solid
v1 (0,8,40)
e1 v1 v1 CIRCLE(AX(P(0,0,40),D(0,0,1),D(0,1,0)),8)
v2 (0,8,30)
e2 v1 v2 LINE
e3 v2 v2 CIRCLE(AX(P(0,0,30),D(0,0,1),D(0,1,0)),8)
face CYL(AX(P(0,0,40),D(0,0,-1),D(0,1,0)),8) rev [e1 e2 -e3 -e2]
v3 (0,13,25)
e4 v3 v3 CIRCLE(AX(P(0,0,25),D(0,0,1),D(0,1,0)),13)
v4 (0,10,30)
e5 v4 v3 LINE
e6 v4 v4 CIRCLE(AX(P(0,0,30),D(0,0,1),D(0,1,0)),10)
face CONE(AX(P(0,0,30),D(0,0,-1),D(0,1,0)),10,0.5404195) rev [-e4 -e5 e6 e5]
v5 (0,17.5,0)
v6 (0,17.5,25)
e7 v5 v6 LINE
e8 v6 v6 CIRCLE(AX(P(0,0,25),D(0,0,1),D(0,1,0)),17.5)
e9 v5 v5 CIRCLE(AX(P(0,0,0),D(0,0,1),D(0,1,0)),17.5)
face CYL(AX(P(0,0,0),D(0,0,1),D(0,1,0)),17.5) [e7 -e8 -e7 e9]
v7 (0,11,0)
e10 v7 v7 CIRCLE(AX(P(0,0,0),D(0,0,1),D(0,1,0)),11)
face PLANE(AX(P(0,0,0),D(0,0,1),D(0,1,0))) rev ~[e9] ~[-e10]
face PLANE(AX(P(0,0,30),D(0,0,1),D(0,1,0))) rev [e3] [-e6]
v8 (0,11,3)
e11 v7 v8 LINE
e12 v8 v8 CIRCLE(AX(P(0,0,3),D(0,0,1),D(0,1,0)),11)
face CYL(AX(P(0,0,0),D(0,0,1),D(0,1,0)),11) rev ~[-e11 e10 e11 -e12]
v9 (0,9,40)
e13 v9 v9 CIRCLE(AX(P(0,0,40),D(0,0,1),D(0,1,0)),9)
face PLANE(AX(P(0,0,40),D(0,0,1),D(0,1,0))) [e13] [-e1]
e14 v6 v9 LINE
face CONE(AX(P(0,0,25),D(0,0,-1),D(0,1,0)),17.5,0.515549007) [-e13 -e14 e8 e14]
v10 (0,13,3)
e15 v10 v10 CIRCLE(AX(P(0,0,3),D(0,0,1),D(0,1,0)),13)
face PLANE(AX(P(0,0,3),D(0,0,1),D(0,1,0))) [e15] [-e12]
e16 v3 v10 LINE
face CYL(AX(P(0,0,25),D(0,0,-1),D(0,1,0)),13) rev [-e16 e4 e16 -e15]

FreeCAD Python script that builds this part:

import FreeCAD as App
import Part
import Sketcher
Q = App.Units.Quantity

doc = App.newDocument("Part")
body = doc.addObject("PartDesign::Body", "Body")

# Sketch on YZ plane
sketch1 = body.newObject("Sketcher::SketchObject", "Sketch")
sketch1.AttachmentSupport = (doc.getObject("YZ_Plane"), [""])
sketch1.MapMode = "FlatFace"
sketch1.addGeometry(Part.LineSegment(App.Vector(11, 0, 0), App.Vector(17.5, 0, 0)), False)
sketch1.addGeometry(Part.LineSegment(App.Vector(17.5, 0, 0), App.Vector(17.5, 25, 0)), False)
sketch1.addGeometry(Part.LineSegment(App.Vector(17.5, 25, 0), App.Vector(9, 40, 0)), False)
sketch1.addGeometry(Part.LineSegment(App.Vector(9, 40, 0), App.Vector(8, 40, 0)), False)
sketch1.addGeometry(Part.LineSegment(App.Vector(8, 40, 0), App.Vector(8, 30, 0)), False)
sketch1.addGeometry(Part.LineSegment(App.Vector(8, 30, 0), App.Vector(10, 30, 0)), False)
sketch1.addGeometry(Part.LineSegment(App.Vector(10, 30, 0), App.Vector(13, 25, 0)), False)
sketch1.addGeometry(Part.LineSegment(App.Vector(13, 25, 0), App.Vector(13, 3, 0)), False)
sketch1.addGeometry(Part.LineSegment(App.Vector(13, 3, 0), App.Vector(11, 3, 0)), False)
sketch1.addGeometry(Part.LineSegment(App.Vector(11, 3, 0), App.Vector(11, 0, 0)), False)
sketch1.addConstraint(Sketcher.Constraint("Coincident", 0, 2, 1, 1))
sketch1.addConstraint(Sketcher.Constraint("Coincident", 1, 2, 2, 1))
sketch1.addConstraint(Sketcher.Constraint("Coincident", 2, 2, 3, 1))
sketch1.addConstraint(Sketcher.Constraint("Coincident", 3, 2, 4, 1))
sketch1.addConstraint(Sketcher.Constraint("Coincident", 4, 2, 5, 1))
sketch1.addConstraint(Sketcher.Constraint("Coincident", 5, 2, 6, 1))
sketch1.addConstraint(Sketcher.Constraint("Coincident", 6, 2, 7, 1))
sketch1.addConstraint(Sketcher.Constraint("Coincident", 7, 2, 8, 1))
sketch1.addConstraint(Sketcher.Constraint("Coincident", 8, 2, 9, 1))
sketch1.addConstraint(Sketcher.Constraint("Coincident", 9, 2, 0, 1))
sketch1.addConstraint(Sketcher.Constraint("Horizontal", 0))
sketch1.addConstraint(Sketcher.Constraint("Vertical", 1))
sketch1.addConstraint(Sketcher.Constraint("Horizontal", 3))
sketch1.addConstraint(Sketcher.Constraint("Vertical", 4))
sketch1.addConstraint(Sketcher.Constraint("Horizontal", 5))
sketch1.addConstraint(Sketcher.Constraint("Vertical", 7))
sketch1.addConstraint(Sketcher.Constraint("Horizontal", 8))
sketch1.addConstraint(Sketcher.Constraint("Vertical", 9))
sketch1.addConstraint(Sketcher.Constraint("PointOnObject", 0, 2, -1))
sketch1.addConstraint(Sketcher.Constraint("Horizontal", 1, 2, 6, 2))
sketch1.addConstraint(Sketcher.Constraint("Equal", 5, 8))
sketch1.addConstraint(Sketcher.Constraint("DistanceX", 3, 2, 3, 1, Q("1 mm")))
sketch1.addConstraint(Sketcher.Constraint("DistanceX", 5, 1, 5, 2, Q("2 mm")))
sketch1.addConstraint(Sketcher.Constraint("DistanceY", 4, 2, 4, 1, Q("10 mm")))
sketch1.addConstraint(Sketcher.Constraint("DistanceY", 7, 2, 7, 1, Q("22 mm")))
sketch1.addConstraint(Sketcher.Constraint("DistanceY", 9, 2, 9, 1, Q("3 mm")))
sketch1.addConstraint(Sketcher.Constraint("DistanceY", -1, 1, 4, 2, Q("30 mm")))
sketch1.addConstraint(Sketcher.Constraint("DistanceX", -1, 1, 5, 2, Q("10 mm")))
sketch1.addConstraint(Sketcher.Constraint("DistanceX", 5, 2, 6, 2, Q("3 mm")))
sketch1.addConstraint(Sketcher.Constraint("DistanceX", 0, 1, 0, 2, Q("6.5 mm")))
revolution = body.newObject("PartDesign::Revolution", "Revolution")
revolution.Profile = sketch1
revolution.ReferenceAxis = (sketch1, ["V_Axis"])
revolution.Angle = 360

doc.recompute()
